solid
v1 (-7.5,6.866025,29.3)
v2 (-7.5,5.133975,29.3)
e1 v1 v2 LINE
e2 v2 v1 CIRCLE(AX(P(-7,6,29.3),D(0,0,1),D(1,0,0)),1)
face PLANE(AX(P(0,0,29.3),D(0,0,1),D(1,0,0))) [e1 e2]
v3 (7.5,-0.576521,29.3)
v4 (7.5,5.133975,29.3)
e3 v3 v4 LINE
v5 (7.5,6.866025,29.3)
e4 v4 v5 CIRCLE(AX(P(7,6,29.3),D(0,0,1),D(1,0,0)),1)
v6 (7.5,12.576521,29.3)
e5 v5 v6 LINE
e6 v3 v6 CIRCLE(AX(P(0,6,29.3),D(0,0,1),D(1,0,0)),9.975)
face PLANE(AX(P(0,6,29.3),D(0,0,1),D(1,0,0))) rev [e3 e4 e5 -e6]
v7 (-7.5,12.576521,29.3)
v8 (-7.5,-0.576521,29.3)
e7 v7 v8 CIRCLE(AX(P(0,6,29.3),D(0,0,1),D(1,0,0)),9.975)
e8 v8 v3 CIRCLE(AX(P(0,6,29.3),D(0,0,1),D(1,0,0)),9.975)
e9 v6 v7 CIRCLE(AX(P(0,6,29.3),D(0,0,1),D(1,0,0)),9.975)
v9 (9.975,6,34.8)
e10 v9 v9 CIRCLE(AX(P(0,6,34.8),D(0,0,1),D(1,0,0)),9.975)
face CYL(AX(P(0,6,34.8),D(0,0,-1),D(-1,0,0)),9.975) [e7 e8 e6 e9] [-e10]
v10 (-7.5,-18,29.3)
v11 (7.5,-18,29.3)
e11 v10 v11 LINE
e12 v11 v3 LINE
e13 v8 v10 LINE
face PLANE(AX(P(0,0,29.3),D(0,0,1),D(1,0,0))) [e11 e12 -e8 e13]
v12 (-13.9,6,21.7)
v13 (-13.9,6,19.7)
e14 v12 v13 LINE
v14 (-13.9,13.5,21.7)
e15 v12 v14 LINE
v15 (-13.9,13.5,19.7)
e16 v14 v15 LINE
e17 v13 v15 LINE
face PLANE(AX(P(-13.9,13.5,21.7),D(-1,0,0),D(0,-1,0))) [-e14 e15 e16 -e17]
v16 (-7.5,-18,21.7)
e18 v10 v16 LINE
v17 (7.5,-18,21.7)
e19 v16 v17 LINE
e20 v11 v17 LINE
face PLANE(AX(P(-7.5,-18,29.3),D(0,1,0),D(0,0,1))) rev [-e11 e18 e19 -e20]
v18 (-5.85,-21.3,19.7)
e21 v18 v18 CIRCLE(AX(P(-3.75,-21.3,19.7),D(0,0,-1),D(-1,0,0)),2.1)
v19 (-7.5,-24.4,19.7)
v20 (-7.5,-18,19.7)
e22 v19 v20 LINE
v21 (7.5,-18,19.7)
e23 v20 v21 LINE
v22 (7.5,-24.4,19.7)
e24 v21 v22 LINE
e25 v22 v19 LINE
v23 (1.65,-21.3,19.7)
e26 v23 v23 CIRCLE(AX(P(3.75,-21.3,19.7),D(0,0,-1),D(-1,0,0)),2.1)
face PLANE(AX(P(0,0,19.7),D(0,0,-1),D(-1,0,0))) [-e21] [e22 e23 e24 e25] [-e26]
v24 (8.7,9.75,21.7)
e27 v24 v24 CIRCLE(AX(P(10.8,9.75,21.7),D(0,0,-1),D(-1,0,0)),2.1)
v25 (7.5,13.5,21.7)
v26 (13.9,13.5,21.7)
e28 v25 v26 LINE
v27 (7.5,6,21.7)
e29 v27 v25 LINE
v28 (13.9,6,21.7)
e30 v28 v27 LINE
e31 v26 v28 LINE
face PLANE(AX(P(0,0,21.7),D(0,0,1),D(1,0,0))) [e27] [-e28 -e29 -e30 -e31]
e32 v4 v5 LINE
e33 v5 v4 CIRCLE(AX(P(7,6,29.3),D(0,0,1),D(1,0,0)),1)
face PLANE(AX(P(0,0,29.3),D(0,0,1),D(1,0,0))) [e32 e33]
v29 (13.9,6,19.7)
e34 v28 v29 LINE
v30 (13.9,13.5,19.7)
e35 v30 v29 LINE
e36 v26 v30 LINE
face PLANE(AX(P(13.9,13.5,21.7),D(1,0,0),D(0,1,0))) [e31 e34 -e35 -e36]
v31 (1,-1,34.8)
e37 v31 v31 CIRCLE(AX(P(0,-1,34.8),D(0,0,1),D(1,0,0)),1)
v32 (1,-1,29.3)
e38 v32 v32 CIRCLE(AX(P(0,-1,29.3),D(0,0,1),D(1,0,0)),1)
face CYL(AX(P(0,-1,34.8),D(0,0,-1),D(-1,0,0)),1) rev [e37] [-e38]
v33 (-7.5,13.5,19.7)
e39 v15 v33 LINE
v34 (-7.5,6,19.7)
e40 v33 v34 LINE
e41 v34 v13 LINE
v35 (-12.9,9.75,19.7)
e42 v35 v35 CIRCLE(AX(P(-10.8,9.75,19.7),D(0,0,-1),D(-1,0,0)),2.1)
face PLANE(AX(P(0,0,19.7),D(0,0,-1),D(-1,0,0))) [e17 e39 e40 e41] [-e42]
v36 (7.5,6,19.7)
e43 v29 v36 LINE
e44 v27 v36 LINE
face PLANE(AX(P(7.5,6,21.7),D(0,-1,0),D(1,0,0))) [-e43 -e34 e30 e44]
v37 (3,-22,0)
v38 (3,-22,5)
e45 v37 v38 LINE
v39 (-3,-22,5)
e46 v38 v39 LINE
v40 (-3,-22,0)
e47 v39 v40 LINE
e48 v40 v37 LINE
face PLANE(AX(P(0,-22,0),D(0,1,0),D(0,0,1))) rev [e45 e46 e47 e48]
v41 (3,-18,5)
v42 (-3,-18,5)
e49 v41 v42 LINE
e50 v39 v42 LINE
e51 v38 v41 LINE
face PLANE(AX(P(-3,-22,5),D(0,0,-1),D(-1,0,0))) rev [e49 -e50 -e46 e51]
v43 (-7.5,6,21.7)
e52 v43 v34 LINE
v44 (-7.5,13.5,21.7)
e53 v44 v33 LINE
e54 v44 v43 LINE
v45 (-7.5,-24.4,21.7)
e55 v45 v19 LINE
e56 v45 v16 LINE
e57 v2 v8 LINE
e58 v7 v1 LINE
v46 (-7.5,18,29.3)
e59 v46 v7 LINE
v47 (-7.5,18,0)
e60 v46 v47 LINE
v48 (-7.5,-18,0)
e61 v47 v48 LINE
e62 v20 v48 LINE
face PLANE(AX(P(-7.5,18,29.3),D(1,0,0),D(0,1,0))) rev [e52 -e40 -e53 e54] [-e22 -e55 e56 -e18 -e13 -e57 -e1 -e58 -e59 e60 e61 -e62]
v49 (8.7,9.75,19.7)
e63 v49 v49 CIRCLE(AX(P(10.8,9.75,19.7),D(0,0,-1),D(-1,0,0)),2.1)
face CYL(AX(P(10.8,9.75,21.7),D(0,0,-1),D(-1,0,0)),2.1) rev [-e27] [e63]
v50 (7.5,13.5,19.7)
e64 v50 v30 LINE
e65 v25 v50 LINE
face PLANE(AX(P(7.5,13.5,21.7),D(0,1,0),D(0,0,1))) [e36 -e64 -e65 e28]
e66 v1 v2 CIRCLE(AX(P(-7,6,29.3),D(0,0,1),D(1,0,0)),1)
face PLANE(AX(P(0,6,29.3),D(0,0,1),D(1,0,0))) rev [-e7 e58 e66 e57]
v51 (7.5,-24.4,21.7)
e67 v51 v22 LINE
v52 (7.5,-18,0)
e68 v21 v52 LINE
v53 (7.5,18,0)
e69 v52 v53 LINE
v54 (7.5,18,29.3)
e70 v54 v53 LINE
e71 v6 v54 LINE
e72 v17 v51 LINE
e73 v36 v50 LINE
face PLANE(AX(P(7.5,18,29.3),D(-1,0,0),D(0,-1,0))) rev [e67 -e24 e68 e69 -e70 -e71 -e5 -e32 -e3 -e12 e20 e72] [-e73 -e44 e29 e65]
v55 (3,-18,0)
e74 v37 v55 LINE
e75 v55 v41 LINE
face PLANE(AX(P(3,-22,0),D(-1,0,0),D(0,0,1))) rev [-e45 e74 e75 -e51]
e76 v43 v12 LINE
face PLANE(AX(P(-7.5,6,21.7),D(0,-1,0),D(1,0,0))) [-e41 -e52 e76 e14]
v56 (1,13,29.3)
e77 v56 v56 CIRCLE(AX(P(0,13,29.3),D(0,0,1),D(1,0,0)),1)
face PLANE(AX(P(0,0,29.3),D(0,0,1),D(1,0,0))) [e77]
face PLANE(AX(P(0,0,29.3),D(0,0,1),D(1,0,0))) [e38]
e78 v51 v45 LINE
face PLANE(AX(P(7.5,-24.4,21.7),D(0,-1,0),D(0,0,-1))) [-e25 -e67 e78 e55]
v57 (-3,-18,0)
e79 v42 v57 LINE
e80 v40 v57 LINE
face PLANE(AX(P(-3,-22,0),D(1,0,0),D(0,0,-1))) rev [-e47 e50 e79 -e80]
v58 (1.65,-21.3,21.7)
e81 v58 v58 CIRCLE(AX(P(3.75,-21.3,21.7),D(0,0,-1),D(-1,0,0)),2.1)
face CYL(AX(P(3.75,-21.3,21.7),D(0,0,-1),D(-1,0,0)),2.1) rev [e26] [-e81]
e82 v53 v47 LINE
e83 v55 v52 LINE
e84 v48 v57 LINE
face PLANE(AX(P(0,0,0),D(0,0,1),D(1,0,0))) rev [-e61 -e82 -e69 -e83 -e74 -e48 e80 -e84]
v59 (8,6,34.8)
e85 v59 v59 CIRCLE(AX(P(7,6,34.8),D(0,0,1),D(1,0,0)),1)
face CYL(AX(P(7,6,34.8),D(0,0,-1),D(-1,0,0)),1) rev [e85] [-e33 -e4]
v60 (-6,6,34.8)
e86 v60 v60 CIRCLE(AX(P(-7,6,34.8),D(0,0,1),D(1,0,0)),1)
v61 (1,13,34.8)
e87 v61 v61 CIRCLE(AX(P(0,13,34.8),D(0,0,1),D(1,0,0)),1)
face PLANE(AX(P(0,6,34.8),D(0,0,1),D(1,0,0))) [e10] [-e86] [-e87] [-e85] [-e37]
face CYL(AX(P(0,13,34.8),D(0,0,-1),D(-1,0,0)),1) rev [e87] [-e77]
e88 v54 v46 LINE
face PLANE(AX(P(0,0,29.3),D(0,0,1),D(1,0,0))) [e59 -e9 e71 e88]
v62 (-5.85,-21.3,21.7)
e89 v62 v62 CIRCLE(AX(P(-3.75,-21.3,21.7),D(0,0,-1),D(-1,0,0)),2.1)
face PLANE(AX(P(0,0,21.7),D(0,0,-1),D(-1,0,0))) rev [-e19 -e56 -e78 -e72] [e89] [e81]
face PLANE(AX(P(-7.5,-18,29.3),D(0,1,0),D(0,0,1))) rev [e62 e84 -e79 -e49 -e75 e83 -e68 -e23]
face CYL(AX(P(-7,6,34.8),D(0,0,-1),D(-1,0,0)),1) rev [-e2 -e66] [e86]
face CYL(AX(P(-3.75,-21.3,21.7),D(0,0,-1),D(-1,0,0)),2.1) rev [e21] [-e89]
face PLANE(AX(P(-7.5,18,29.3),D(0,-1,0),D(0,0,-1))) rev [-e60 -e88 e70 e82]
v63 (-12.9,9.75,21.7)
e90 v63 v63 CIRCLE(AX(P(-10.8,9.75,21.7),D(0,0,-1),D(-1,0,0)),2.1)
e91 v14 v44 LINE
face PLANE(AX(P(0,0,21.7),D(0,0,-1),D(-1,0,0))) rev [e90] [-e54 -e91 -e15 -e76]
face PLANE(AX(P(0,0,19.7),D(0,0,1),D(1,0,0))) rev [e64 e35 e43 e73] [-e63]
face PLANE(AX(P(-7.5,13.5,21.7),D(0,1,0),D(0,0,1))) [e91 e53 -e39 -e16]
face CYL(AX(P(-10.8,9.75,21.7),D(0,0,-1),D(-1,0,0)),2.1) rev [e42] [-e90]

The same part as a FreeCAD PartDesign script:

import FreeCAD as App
import Part
import Sketcher

V = App.Vector
Q = App.Units.Quantity


def add_polygon(sketch, points):
    """Adds a closed chain of lines whose ends are joined by coincident constraints."""
    first, n = sketch.GeometryCount, len(points)
    for a, b in zip(points, points[1:] + points[:1]):
        sketch.addGeometry(Part.LineSegment(App.Vector(*a, 0), App.Vector(*b, 0)), False)
    for i in range(n):
        sketch.addConstraint(Sketcher.Constraint("Coincident", first + i, 2, first + (i + 1) % n, 1))

doc = App.newDocument("Part")
params = doc.addObject("Spreadsheet::Sheet", "Params")
for row, (alias, value) in enumerate([
    ("sketch1_width", "15 mm"),
    ("sketch1_height", "36 mm"),
    ("pad1_length", "29.3 mm"),
    ("sketch2_diameter", "2 mm"),
    ("sketch2_diameter2", "19.95 mm"),
    ("pad2_length", "5.5 mm"),
    ("sketch3_diameter", "4.2 mm"),
    ("sketch3_width", "15 mm"),
    ("sketch3_width2", "6.4 mm"),
    ("sketch3_height", "7.5 mm"),
    ("pad3_length", "2 mm"),
    ("sketch4_width", "6 mm"),
    ("sketch4_height", "5 mm"),
    ("pad4_length", "4 mm"),
], start=1):
    params.set(f"A{row}", alias)
    params.set(f"B{row}", "=" + value)
    params.setAlias(f"B{row}", alias)

body = doc.addObject("PartDesign::Body", "Body")

sketch1 = doc.addObject("Sketcher::SketchObject", "Sketch")
body.addObject(sketch1)
sketch1.AttachmentSupport = (doc.XY_Plane, [""])
sketch1.MapMode = "FlatFace"
add_polygon(sketch1, [(-8, 18), (-8, -18), (8, -18), (8, 18)])
sketch1.addConstraint([
    Sketcher.Constraint("Vertical", 0),
    Sketcher.Constraint("Horizontal", 1),
    Sketcher.Constraint("Vertical", 2),
    Sketcher.Constraint("Horizontal", 3),
    Sketcher.Constraint("Symmetric", 0, 2, 2, 2, -1, 1),
    Sketcher.Constraint("DistanceX", 1, 1, 1, 2, Q("15 mm")),
    Sketcher.Constraint("DistanceY", 0, 2, 0, 1, Q("36 mm")),
])
sketch1.setExpression("Constraints[9]", "Params.sketch1_width")
sketch1.setExpression("Constraints[10]", "Params.sketch1_height")
pad1 = doc.addObject("PartDesign::Pad", "Pad")
body.addObject(pad1)
pad1.Profile = sketch1
pad1.setExpression("Length", "Params.pad1_length")

sketch2 = doc.addObject("Sketcher::SketchObject", "Sketch001")
body.addObject(sketch2)
sketch2.AttachmentSupport = (doc.XY_Plane, [""])
sketch2.MapMode = "FlatFace"
sketch2.AttachmentOffset = App.Placement(V(0, 0, 29.3), App.Rotation())
sketch2.addGeometry([
    Part.Circle(V(0, 6, 0), V(0, 0, 1), 10),
    Part.Circle(V(0, 13, 0), V(0, 0, 1), 1),
    Part.Circle(V(-7, 6, 0), V(0, 0, 1), 1),
    Part.Circle(V(7, 6, 0), V(0, 0, 1), 1),
    Part.Circle(V(0, -1, 0), V(0, 0, 1), 1),
], False)
sketch2.addConstraint([
    Sketcher.Constraint("Equal", 1, 2),
    Sketcher.Constraint("Equal", 2, 3),
    Sketcher.Constraint("Equal", 3, 4),
    Sketcher.Constraint("Symmetric", 2, 3, 3, 3, -2),
    Sketcher.Constraint("PointOnObject", 0, 3, -2),
    Sketcher.Constraint("PointOnObject", 1, 3, -2),
    Sketcher.Constraint("PointOnObject", 4, 3, -2),
    Sketcher.Constraint("Horizontal", 0, 3, 2, 3),
    Sketcher.Constraint("Diameter", 1, Q("2 mm")),
    Sketcher.Constraint("Diameter", 0, Q("19.95 mm")),
    Sketcher.Constraint("DistanceY", -1, 1, 0, 3, Q("6 mm")),
    Sketcher.Constraint("DistanceY", -1, 1, 1, 3, Q("13 mm")),
    Sketcher.Constraint("DistanceX", 2, 3, -1, 1, Q("7 mm")),
    Sketcher.Constraint("DistanceY", 4, 3, -1, 1, Q("1 mm")),
])
sketch2.setExpression("Constraints[8]", "Params.sketch2_diameter")
sketch2.setExpression("Constraints[9]", "Params.sketch2_diameter2")
pad2 = doc.addObject("PartDesign::Pad", "Pad001")
body.addObject(pad2)
pad2.Profile = sketch2
pad2.setExpression("Length", "Params.pad2_length")

sketch3 = doc.addObject("Sketcher::SketchObject", "Sketch002")
body.addObject(sketch3)
sketch3.AttachmentSupport = (doc.XY_Plane, [""])
sketch3.MapMode = "FlatFace"
sketch3.AttachmentOffset = App.Placement(V(0, 0, 19.7), App.Rotation())
add_polygon(sketch3, [(7.5, -18), (7.5, -24.4), (-7.5, -24.4), (-7.5, -18)])
sketch3.addGeometry(Part.Circle(V(3.8, -21.3, 0), V(0, 0, 1), 2.1), False)
sketch3.addGeometry(Part.Circle(V(-3.8, -21.3, 0), V(0, 0, 1), 2.1), False)
add_polygon(sketch3, [(13.9, 13.5), (13.9, 6), (7.5, 6), (7.5, 13.5)])
sketch3.addGeometry(Part.Circle(V(10.8, 9.8, 0), V(0, 0, 1), 2.1), False)
add_polygon(sketch3, [(-7.5, 13.5), (-7.5, 6), (-13.9, 6), (-13.9, 13.5)])
sketch3.addGeometry(Part.Circle(V(-10.8, 9.8, 0), V(0, 0, 1), 2.1), False)
sketch3.addConstraint([
    Sketcher.Constraint("Vertical", 0),
    Sketcher.Constraint("Horizontal", 1),
    Sketcher.Constraint("Vertical", 2),
    Sketcher.Constraint("Horizontal", 3),
    Sketcher.Constraint("Vertical", 6),
    Sketcher.Constraint("Horizontal", 7),
    Sketcher.Constraint("Vertical", 8),
    Sketcher.Constraint("Horizontal", 9),
    Sketcher.Constraint("Vertical", 11),
    Sketcher.Constraint("Horizontal", 12),
    Sketcher.Constraint("Vertical", 13),
    Sketcher.Constraint("Horizontal", 14),
    Sketcher.Constraint("Equal", 4, 5),
    Sketcher.Constraint("Equal", 5, 10),
    Sketcher.Constraint("Equal", 10, 15),
    Sketcher.Constraint("Symmetric", 4, 3, 5, 3, -2),
    Sketcher.Constraint("Symmetric", 10, 3, 15, 3, -2),
    Sketcher.Constraint("Symmetric", 7, 2, 11, 2, -2),
    Sketcher.Constraint("Symmetric", 9, 2, 13, 2, -2),
    Sketcher.Constraint("Vertical", 3, 2, 7, 2),
    Sketcher.Constraint("Vertical", 2, 2, 11, 2),
    Sketcher.Constraint("Equal", 14, 0),
    Sketcher.Constraint("Diameter", 4, Q("4.2 mm")),
    Sketcher.Constraint("DistanceX", 1, 2, 1, 1, Q("15 mm")),
    Sketcher.Constraint("DistanceX", 7, 2, 7, 1, Q("6.4 mm")),
    Sketcher.Constraint("DistanceY", 6, 2, 6, 1, Q("7.5 mm")),
    Sketcher.Constraint("DistanceY", 2, 2, -1, 1, Q("18 mm")),
    Sketcher.Constraint("DistanceY", -1, 1, 6, 2, Q("6 mm")),
    Sketcher.Constraint("DistanceY", 4, 3, -1, 1, Q("21.3 mm")),
    Sketcher.Constraint("DistanceX", -1, 1, 10, 3, Q("10.8 mm")),
    Sketcher.Constraint("DistanceX", 5, 3, 4, 3, Q("7.5 mm")),
    Sketcher.Constraint("DistanceY", -1, 1, 10, 3, Q("9.75 mm")),
])
sketch3.setExpression("Constraints[34]", "Params.sketch3_diameter")
sketch3.setExpression("Constraints[35]", "Params.sketch3_width")
sketch3.setExpression("Constraints[36]", "Params.sketch3_width2")
sketch3.setExpression("Constraints[37]", "Params.sketch3_height")
pad3 = doc.addObject("PartDesign::Pad", "Pad002")
body.addObject(pad3)
pad3.Profile = sketch3
pad3.setExpression("Length", "Params.pad3_length")

sketch4 = doc.addObject("Sketcher::SketchObject", "Sketch003")
body.addObject(sketch4)
sketch4.AttachmentSupport = (doc.XZ_Plane, [""])
sketch4.MapMode = "FlatFace"
sketch4.AttachmentOffset = App.Placement(V(0, 0, 18), App.Rotation())
add_polygon(sketch4, [(-3, 5), (-3, 0), (3, 0), (3, 5)])
sketch4.addConstraint([
    Sketcher.Constraint("Vertical", 0),
    Sketcher.Constraint("Horizontal", 1),
    Sketcher.Constraint("Vertical", 2),
    Sketcher.Constraint("Horizontal", 3),
    Sketcher.Constraint("Symmetric", 0, 2, 1, 2, -1, 1),
    Sketcher.Constraint("DistanceX", 1, 1, 1, 2, Q("6 mm")),
    Sketcher.Constraint("DistanceY", 0, 2, 0, 1, Q("5 mm")),
])
sketch4.setExpression("Constraints[9]", "Params.sketch4_width")
sketch4.setExpression("Constraints[10]", "Params.sketch4_height")
pad4 = doc.addObject("PartDesign::Pad", "Pad003")
body.addObject(pad4)
pad4.Profile = sketch4
pad4.setExpression("Length", "Params.pad4_length")

doc.recompute()
